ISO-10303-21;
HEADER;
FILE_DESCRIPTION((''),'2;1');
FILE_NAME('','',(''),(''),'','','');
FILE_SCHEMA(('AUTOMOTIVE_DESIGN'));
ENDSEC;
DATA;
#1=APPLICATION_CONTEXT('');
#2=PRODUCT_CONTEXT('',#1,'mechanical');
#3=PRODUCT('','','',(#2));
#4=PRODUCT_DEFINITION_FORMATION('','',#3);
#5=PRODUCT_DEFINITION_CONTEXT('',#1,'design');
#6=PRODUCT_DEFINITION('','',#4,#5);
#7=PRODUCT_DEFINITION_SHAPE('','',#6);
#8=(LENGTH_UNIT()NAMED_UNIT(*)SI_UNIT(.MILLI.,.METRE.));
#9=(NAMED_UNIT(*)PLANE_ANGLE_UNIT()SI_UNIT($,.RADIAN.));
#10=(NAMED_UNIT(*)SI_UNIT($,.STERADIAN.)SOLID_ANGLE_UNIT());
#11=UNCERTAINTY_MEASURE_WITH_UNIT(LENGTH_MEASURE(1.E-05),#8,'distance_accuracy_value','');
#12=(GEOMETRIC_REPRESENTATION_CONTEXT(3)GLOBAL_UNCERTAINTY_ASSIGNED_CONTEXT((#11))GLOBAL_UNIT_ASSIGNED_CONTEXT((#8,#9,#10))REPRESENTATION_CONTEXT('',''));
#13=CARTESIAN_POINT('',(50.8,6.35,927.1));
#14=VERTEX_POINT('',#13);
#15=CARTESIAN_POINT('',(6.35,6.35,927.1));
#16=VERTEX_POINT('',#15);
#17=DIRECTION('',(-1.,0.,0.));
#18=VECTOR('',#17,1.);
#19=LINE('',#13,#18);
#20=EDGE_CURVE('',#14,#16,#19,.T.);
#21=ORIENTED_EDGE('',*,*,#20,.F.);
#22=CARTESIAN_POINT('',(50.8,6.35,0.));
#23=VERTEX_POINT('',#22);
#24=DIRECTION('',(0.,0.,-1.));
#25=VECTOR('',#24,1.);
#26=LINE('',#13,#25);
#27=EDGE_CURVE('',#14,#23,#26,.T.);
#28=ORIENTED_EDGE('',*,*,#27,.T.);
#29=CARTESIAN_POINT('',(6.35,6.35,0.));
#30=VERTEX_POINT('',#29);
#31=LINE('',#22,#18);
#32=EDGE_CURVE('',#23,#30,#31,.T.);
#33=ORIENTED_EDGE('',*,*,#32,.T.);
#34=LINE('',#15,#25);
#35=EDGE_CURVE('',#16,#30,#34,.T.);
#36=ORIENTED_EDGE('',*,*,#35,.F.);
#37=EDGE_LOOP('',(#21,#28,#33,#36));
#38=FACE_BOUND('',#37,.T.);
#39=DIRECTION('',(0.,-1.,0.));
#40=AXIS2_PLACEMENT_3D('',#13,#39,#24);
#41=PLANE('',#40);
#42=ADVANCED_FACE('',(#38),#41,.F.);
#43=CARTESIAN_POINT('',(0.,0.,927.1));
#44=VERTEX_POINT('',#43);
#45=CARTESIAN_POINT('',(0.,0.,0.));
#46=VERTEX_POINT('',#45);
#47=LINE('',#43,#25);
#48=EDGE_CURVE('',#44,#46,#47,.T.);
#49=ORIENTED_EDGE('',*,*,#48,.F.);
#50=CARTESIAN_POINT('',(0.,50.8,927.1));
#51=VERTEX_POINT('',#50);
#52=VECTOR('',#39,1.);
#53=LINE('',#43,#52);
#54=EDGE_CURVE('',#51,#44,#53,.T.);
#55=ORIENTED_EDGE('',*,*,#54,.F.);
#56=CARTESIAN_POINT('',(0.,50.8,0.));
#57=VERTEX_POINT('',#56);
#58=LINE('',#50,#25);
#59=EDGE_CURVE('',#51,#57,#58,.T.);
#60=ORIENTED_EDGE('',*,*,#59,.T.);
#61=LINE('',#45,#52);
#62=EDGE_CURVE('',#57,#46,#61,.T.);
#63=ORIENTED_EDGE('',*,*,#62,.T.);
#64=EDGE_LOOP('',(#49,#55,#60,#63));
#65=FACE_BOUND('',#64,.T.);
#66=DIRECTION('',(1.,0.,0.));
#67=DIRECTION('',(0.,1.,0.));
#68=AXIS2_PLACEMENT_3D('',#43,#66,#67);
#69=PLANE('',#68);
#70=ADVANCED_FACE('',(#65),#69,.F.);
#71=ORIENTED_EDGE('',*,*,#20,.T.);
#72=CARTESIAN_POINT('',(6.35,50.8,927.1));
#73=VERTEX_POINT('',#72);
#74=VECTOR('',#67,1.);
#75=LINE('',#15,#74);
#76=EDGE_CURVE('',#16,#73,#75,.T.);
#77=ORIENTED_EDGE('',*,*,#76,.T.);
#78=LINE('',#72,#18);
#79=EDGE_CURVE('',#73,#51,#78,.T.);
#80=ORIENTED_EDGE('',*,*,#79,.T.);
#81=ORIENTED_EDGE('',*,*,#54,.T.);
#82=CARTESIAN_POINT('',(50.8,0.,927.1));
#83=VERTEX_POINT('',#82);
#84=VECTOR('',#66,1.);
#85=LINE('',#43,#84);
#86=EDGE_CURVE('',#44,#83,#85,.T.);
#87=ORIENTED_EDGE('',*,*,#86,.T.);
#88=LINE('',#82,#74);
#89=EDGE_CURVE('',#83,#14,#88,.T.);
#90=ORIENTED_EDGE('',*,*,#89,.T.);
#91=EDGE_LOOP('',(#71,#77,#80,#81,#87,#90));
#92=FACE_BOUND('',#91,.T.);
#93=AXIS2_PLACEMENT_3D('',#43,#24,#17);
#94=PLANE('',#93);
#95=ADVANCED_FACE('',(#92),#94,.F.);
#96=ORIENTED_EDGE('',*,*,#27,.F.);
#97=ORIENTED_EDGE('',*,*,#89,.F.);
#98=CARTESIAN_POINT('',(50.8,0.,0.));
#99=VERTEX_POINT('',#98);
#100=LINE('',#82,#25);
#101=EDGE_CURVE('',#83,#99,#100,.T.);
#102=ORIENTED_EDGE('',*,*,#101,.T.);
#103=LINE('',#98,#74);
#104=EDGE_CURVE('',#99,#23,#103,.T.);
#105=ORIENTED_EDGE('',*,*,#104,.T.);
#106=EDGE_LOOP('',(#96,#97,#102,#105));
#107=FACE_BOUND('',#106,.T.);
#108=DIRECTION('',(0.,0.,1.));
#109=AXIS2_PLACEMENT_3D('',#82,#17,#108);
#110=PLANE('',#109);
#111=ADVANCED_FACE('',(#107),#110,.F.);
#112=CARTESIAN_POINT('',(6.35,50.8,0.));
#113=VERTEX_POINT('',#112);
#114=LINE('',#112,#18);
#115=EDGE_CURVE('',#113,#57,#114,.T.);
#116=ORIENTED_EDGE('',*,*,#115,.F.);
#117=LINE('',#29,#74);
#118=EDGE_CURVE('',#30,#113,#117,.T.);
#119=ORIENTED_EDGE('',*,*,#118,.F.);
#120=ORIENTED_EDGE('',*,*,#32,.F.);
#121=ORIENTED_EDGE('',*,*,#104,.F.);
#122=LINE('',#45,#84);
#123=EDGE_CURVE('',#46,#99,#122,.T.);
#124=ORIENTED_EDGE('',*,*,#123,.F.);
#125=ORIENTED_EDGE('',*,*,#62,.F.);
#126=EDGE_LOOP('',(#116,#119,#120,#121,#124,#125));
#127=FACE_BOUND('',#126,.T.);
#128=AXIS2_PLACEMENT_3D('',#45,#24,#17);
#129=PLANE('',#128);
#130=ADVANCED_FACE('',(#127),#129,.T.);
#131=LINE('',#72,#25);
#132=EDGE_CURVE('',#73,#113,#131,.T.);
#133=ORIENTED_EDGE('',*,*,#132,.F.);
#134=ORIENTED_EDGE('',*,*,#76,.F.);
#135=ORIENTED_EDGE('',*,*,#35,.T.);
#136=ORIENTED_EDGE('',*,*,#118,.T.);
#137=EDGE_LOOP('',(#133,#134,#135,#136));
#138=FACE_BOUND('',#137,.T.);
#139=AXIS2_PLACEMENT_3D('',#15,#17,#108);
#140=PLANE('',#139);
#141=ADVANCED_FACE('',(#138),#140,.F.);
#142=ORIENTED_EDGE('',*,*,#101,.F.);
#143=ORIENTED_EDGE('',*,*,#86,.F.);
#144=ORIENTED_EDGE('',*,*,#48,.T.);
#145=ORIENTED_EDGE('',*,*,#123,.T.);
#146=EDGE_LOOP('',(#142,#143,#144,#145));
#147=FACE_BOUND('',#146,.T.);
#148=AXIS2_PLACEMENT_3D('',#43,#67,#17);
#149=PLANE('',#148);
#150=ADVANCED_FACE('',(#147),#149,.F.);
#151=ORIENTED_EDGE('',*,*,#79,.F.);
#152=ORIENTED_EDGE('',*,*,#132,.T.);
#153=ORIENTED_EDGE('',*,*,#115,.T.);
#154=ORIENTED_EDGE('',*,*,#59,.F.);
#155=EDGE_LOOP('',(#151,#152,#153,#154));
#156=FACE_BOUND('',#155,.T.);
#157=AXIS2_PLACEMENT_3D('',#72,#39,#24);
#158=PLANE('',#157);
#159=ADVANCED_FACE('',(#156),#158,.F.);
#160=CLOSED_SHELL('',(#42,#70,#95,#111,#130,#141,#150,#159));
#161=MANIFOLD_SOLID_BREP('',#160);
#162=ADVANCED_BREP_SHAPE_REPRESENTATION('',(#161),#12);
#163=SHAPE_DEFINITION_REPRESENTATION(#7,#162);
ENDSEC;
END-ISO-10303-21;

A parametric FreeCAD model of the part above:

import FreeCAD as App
import Part
import Sketcher
from FreeCAD import Vector
Q = App.Units.Quantity


def add_polygon(sketch, points):
    """Adds a closed chain of lines whose ends are joined by coincident constraints."""
    first, n = sketch.GeometryCount, len(points)
    for a, b in zip(points, points[1:] + points[:1]):
        sketch.addGeometry(Part.LineSegment(App.Vector(*a, 0), App.Vector(*b, 0)), False)
    for i in range(n):
        sketch.addConstraint(Sketcher.Constraint("Coincident", first + i, 2, first + (i + 1) % n, 1))

doc = App.newDocument("Part")
body = doc.addObject("PartDesign::Body", "Body")

# Sketch on XY plane
sketch1 = doc.addObject("Sketcher::SketchObject", "Sketch")
body.addObject(sketch1)
sketch1.AttachmentSupport = (doc.XY_Plane, [""])
sketch1.MapMode = "FlatFace"
add_polygon(sketch1, [(0, 51), (0, 0), (51, 0), (51, 6), (6, 6), (6, 51)])  # lines 0-5
sketch1.addConstraint(Sketcher.Constraint("Vertical", 0))
sketch1.addConstraint(Sketcher.Constraint("Horizontal", 1))
sketch1.addConstraint(Sketcher.Constraint("Vertical", 2))
sketch1.addConstraint(Sketcher.Constraint("Horizontal", 3))
sketch1.addConstraint(Sketcher.Constraint("Vertical", 4))
sketch1.addConstraint(Sketcher.Constraint("Horizontal", 5))
sketch1.addConstraint(Sketcher.Constraint("Coincident", 0, 2, -1, 1))
sketch1.addConstraint(Sketcher.Constraint("Equal", 1, 0))
sketch1.addConstraint(Sketcher.Constraint("Equal", 5, 2))
sketch1.addConstraint(Sketcher.Constraint("DistanceX", 1, 1, 1, 2, Q("2 in")))
sketch1.addConstraint(Sketcher.Constraint("DistanceX", 3, 2, 3, 1, Q("1.75 in")))
pad1 = doc.addObject("PartDesign::Pad", "Pad")
body.addObject(pad1)
pad1.Profile = sketch1
pad1.Length = Q("36.5 in")

doc.recompute()
